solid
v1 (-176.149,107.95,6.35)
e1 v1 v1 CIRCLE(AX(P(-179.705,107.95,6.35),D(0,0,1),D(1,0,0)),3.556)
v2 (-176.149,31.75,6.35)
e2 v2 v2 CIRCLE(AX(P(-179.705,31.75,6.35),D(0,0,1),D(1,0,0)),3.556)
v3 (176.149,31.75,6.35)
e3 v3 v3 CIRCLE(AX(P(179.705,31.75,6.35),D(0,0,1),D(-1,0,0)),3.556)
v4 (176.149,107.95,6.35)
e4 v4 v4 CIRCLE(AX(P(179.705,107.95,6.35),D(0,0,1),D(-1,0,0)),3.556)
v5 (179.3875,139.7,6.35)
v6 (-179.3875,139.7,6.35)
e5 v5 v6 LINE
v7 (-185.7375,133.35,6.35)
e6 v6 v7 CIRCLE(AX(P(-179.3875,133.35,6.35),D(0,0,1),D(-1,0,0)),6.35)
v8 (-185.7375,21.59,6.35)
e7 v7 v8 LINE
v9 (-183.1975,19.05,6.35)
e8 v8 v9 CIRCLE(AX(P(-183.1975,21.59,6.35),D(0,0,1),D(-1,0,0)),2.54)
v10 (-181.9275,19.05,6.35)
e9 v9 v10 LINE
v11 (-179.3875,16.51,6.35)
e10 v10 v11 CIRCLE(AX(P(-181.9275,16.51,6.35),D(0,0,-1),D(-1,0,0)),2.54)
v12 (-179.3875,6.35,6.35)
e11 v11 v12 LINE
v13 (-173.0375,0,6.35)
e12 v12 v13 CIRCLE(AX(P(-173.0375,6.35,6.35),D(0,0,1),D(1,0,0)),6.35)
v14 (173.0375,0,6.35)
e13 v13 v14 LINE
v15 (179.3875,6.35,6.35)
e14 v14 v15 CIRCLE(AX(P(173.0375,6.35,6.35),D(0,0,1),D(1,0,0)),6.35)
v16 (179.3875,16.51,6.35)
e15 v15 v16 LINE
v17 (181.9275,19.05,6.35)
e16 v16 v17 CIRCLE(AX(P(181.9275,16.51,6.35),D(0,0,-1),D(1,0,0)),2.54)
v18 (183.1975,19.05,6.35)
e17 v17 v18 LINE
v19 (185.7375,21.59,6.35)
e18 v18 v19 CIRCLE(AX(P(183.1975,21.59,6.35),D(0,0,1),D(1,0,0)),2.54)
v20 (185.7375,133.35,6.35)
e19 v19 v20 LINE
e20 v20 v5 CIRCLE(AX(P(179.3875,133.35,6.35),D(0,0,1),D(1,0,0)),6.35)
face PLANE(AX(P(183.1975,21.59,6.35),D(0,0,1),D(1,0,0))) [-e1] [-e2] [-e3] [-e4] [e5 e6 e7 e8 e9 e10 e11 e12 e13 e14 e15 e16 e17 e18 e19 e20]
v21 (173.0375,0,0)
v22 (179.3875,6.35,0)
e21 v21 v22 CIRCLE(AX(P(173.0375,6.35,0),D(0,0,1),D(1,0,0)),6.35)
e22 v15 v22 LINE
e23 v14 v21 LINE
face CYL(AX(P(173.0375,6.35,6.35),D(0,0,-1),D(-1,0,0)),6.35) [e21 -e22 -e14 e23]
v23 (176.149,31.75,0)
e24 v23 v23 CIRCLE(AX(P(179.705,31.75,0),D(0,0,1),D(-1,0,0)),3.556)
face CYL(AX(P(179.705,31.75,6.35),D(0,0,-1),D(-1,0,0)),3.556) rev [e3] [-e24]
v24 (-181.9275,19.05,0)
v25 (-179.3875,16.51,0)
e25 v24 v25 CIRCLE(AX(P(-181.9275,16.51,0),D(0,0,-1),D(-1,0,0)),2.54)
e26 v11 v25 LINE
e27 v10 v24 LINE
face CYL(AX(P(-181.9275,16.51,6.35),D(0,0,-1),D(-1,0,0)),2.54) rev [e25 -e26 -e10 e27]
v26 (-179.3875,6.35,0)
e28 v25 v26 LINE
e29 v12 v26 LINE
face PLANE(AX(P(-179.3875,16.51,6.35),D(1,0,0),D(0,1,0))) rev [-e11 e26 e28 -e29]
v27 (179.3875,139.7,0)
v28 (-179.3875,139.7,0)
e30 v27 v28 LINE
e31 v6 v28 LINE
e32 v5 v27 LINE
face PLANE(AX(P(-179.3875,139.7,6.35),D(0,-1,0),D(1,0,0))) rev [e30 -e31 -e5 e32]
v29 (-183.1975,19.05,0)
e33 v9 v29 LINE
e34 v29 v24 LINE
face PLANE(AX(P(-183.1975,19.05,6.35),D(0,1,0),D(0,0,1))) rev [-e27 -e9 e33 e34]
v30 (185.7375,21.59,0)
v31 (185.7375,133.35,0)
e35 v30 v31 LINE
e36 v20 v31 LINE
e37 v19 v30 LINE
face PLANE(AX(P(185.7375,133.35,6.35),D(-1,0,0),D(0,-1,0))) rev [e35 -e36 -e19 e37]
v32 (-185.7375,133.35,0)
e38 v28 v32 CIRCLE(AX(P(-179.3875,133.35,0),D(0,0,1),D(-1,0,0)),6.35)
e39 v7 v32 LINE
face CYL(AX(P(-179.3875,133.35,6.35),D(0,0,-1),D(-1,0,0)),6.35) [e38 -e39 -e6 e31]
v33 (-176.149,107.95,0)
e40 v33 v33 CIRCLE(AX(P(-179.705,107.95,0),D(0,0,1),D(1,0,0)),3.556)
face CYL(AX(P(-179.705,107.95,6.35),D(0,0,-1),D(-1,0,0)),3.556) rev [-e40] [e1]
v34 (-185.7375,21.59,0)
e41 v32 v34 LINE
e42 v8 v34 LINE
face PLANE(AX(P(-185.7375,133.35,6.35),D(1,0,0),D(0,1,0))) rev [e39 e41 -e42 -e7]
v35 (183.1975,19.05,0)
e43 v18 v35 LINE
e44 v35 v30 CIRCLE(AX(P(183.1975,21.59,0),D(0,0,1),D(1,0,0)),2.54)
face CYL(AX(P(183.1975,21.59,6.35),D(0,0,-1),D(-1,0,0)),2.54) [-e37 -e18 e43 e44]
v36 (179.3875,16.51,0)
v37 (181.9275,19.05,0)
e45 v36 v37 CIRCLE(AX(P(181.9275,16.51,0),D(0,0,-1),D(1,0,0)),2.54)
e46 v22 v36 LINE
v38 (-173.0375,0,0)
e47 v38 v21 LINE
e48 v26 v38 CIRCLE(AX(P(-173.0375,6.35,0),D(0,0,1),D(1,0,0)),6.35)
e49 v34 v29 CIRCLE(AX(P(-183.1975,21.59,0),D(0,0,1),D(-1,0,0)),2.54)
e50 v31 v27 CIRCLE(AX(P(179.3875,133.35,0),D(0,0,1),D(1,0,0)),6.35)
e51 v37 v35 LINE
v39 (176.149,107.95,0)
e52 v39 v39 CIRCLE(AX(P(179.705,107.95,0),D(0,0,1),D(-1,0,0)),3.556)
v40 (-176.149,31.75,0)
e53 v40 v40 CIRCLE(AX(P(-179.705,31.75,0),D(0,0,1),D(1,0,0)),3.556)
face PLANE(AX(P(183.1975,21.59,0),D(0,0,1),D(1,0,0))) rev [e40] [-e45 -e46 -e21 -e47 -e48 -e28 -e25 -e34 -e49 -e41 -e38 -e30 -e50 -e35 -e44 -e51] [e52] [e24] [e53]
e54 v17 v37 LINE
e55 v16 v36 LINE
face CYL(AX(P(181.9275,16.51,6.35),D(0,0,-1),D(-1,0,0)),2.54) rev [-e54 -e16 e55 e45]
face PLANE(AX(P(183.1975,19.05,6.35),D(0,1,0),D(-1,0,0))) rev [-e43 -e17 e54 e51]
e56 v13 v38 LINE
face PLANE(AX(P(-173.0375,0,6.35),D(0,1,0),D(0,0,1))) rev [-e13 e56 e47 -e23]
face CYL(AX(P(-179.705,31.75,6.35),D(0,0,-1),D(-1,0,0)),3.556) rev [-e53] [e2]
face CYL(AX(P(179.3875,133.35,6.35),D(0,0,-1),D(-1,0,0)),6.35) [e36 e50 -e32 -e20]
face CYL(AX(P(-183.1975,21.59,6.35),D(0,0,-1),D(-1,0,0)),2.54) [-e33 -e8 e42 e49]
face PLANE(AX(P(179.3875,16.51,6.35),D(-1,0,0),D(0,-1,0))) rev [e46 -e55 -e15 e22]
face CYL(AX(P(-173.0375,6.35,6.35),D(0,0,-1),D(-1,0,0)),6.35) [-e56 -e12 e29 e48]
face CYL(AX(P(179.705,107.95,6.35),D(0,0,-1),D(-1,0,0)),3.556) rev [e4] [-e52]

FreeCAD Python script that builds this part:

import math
import FreeCAD as App
import Part
import Sketcher

V = App.Vector
Q = App.Units.Quantity

doc = App.newDocument("Part")
body = doc.addObject("PartDesign::Body", "Body")

# Sketch on XY plane
sketch1 = body.newObject("Sketcher::SketchObject", "Sketch")
sketch1.AttachmentSupport = (doc.getObject("XY_Plane"), [""])
sketch1.MapMode = "FlatFace"
sketch1.addGeometry([
    Part.LineSegment(V(-185.7, 133.3, 0), V(-185.7, 21.6, 0)),  # 0
    Part.ArcOfCircle(Part.Circle(V(-183.2, 21.6, 0), V(0, 0, 1), 2.5), math.radians(-180), math.radians(-90)),  # 1
    Part.LineSegment(V(-183.2, 19.1, 0), V(-181.9, 19.1, 0)),  # 2
    Part.ArcOfCircle(Part.Circle(V(-181.9, 16.5, 0), V(0, 0, 1), 2.5), math.radians(0), math.radians(90)),  # 3
    Part.LineSegment(V(-179.4, 16.5, 0), V(-179.4, 6.3, 0)),  # 4
    Part.ArcOfCircle(Part.Circle(V(-173, 6.3, 0), V(0, 0, 1), 6.3), math.radians(180), math.radians(270)),  # 5
    Part.LineSegment(V(-173, 0, 0), V(173, 0, 0)),  # 6
    Part.ArcOfCircle(Part.Circle(V(173, 6.3, 0), V(0, 0, 1), 6.3), math.radians(-90), math.radians(0)),  # 7
    Part.LineSegment(V(179.4, 6.3, 0), V(179.4, 16.5, 0)),  # 8
    Part.ArcOfCircle(Part.Circle(V(181.9, 16.5, 0), V(0, 0, 1), 2.5), math.radians(90), math.radians(180)),  # 9
    Part.LineSegment(V(181.9, 19.1, 0), V(183.2, 19.1, 0)),  # 10
    Part.ArcOfCircle(Part.Circle(V(183.2, 21.6, 0), V(0, 0, 1), 2.5), math.radians(-90), math.radians(0)),  # 11
    Part.LineSegment(V(185.7, 21.6, 0), V(185.7, 133.3, 0)),  # 12
    Part.ArcOfCircle(Part.Circle(V(179.4, 133.4, 0), V(0, 0, 1), 6.3), math.radians(0), math.radians(90)),  # 13
    Part.LineSegment(V(179.4, 139.7, 0), V(-179.4, 139.7, 0)),  # 14
    Part.ArcOfCircle(Part.Circle(V(-179.4, 133.4, 0), V(0, 0, 1), 6.3), math.radians(90), math.radians(180)),  # 15
    Part.Circle(V(-179.7, 31.8, 0), V(0, 0, 1), 3.6),  # 16
    Part.Circle(V(179.7, 31.8, 0), V(0, 0, 1), 3.6),  # 17
    Part.Circle(V(-179.7, 108, 0), V(0, 0, 1), 3.6),  # 18
    Part.Circle(V(179.7, 108, 0), V(0, 0, 1), 3.6),  # 19
], False)
sketch1.addConstraint([
    Sketcher.Constraint("Tangent", 0, 2, 1, 1),
    Sketcher.Constraint("Tangent", 1, 2, 2, 1),
    Sketcher.Constraint("Tangent", 2, 2, 3, 2),
    Sketcher.Constraint("Tangent", 3, 1, 4, 1),
    Sketcher.Constraint("Tangent", 4, 2, 5, 1),
    Sketcher.Constraint("Tangent", 5, 2, 6, 1),
    Sketcher.Constraint("Tangent", 6, 2, 7, 1),
    Sketcher.Constraint("Tangent", 7, 2, 8, 1),
    Sketcher.Constraint("Tangent", 8, 2, 9, 2),
    Sketcher.Constraint("Tangent", 9, 1, 10, 1),
    Sketcher.Constraint("Tangent", 10, 2, 11, 1),
    Sketcher.Constraint("Tangent", 11, 2, 12, 1),
    Sketcher.Constraint("Tangent", 12, 2, 13, 1),
    Sketcher.Constraint("Tangent", 13, 2, 14, 1),
    Sketcher.Constraint("Tangent", 14, 2, 15, 1),
    Sketcher.Constraint("Tangent", 15, 2, 0, 1),
    Sketcher.Constraint("Vertical", 0),
    Sketcher.Constraint("Horizontal", 2),
    Sketcher.Constraint("Vertical", 4),
    Sketcher.Constraint("Horizontal", 6),
    Sketcher.Constraint("Vertical", 8),
    Sketcher.Constraint("Horizontal", 10),
    Sketcher.Constraint("Vertical", 12),
    Sketcher.Constraint("Horizontal", 14),
    Sketcher.Constraint("Equal", 1, 3),
    Sketcher.Constraint("Equal", 5, 7),
    Sketcher.Constraint("Equal", 3, 9),
    Sketcher.Constraint("Equal", 9, 11),
    Sketcher.Constraint("Equal", 7, 13),
    Sketcher.Constraint("Equal", 13, 15),
    Sketcher.Constraint("Equal", 16, 17),
    Sketcher.Constraint("Equal", 17, 18),
    Sketcher.Constraint("Equal", 18, 19),
    Sketcher.Constraint("Symmetric", 5, 2, 6, 2, -1, 1),
    Sketcher.Constraint("Symmetric", 1, 3, 11, 3, -2),
    Sketcher.Constraint("Symmetric", 16, 3, 17, 3, -2),
    Sketcher.Constraint("Symmetric", 18, 3, 19, 3, -2),
    Sketcher.Constraint("Vertical", 16, 3, 18, 3),
    Sketcher.Constraint("Vertical", 15, 3, 3, 1),
    Sketcher.Constraint("Radius", 1, Q("0.1 in")),
    Sketcher.Constraint("Diameter", 16, Q("0.28 in")),
    Sketcher.Constraint("Radius", 5, Q("0.25 in")),
    Sketcher.Constraint("DistanceY", 0, 2, 0, 1, Q("4.4 in")),
    Sketcher.Constraint("DistanceY", 4, 2, 4, 1, Q("0.4 in")),
    Sketcher.Constraint("DistanceY", 5, 3, 16, 3, Q("1 in")),
    Sketcher.Constraint("DistanceY", 18, 3, 15, 3, Q("1 in")),
    Sketcher.Constraint("DistanceX", 6, 1, 6, 2, Q("13.625 in")),
    Sketcher.Constraint("DistanceX", 16, 3, -1, 1, Q("7.075 in")),
])
pad1 = body.newObject("PartDesign::Pad", "Pad")
pad1.Profile = sketch1
pad1.Length = Q("0.25 in")

doc.recompute()
